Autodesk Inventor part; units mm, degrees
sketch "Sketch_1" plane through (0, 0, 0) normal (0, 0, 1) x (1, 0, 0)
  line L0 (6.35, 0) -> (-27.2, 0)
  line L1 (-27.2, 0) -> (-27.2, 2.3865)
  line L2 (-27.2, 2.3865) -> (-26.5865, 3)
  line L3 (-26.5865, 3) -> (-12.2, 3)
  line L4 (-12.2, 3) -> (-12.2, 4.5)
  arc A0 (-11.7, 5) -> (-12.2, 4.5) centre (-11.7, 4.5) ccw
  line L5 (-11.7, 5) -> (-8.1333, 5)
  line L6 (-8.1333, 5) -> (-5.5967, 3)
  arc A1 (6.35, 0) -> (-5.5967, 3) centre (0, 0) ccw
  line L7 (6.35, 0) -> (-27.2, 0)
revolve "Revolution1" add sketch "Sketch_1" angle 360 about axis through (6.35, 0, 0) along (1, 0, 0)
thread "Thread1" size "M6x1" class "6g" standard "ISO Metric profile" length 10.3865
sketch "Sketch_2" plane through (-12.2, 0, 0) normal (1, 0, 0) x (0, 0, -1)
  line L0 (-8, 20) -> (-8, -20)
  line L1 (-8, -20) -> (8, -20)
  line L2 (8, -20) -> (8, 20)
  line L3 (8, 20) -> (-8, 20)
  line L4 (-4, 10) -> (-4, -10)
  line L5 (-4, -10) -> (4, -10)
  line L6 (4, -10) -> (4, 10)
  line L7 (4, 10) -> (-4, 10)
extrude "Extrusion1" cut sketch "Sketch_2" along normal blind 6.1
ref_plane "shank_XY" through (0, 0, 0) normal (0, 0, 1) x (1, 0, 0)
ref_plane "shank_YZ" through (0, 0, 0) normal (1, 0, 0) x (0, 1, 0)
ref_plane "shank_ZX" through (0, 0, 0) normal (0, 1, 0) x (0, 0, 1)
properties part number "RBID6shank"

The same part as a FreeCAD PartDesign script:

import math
import FreeCAD as App
import Part
import Sketcher
from FreeCAD import Vector
Q = App.Units.Quantity


def add_polygon(sketch, points):
    """Adds a closed chain of lines whose ends are joined by coincident constraints."""
    first, n = sketch.GeometryCount, len(points)
    for a, b in zip(points, points[1:] + points[:1]):
        sketch.addGeometry(Part.LineSegment(App.Vector(*a, 0), App.Vector(*b, 0)), False)
    for i in range(n):
        sketch.addConstraint(Sketcher.Constraint("Coincident", first + i, 2, first + (i + 1) % n, 1))

doc = App.newDocument("Part")
body = doc.addObject("PartDesign::Body", "Body")

# Sketch on XY plane
sketch1 = body.newObject("Sketcher::SketchObject", "Sketch")
sketch1.AttachmentSupport = (doc.getObject("XY_Plane"), [""])
sketch1.MapMode = "FlatFace"
sketch1.addGeometry(Part.LineSegment(Vector(-27.2, 0, 0), Vector(6.3, 0, 0)), False)
sketch1.addGeometry(Part.ArcOfCircle(Part.Circle(Vector(0, 0, 0), Vector(0, 0, 1), 6.3), math.radians(0), math.radians(152)), False)
sketch1.addGeometry(Part.LineSegment(Vector(-5.6, 3, 0), Vector(-8.1, 5, 0)), False)
sketch1.addGeometry(Part.LineSegment(Vector(-8.1, 5, 0), Vector(-11.7, 5, 0)), False)
sketch1.addGeometry(Part.ArcOfCircle(Part.Circle(Vector(-11.7, 4.5, 0), Vector(0, 0, 1), 0.5), math.radians(90), math.radians(180)), False)
sketch1.addGeometry(Part.LineSegment(Vector(-12.2, 4.5, 0), Vector(-12.2, 3, 0)), False)
sketch1.addGeometry(Part.LineSegment(Vector(-12.2, 3, 0), Vector(-26.6, 3, 0)), False)
sketch1.addGeometry(Part.LineSegment(Vector(-26.6, 3, 0), Vector(-27.2, 2.4, 0)), False)
sketch1.addGeometry(Part.LineSegment(Vector(-27.2, 2.4, 0), Vector(-27.2, 0, 0)), False)
sketch1.addConstraint(Sketcher.Constraint("Coincident", 0, 2, 1, 1))
sketch1.addConstraint(Sketcher.Constraint("Coincident", 1, 2, 2, 1))
sketch1.addConstraint(Sketcher.Constraint("Coincident", 2, 2, 3, 1))
sketch1.addConstraint(Sketcher.Constraint("Tangent", 3, 2, 4, 1))
sketch1.addConstraint(Sketcher.Constraint("Tangent", 4, 2, 5, 1))
sketch1.addConstraint(Sketcher.Constraint("Coincident", 5, 2, 6, 1))
sketch1.addConstraint(Sketcher.Constraint("Coincident", 6, 2, 7, 1))
sketch1.addConstraint(Sketcher.Constraint("Coincident", 7, 2, 8, 1))
sketch1.addConstraint(Sketcher.Constraint("Coincident", 8, 2, 0, 1))
sketch1.addConstraint(Sketcher.Constraint("Horizontal", 0))
sketch1.addConstraint(Sketcher.Constraint("Horizontal", 3))
sketch1.addConstraint(Sketcher.Constraint("Vertical", 5))
sketch1.addConstraint(Sketcher.Constraint("Horizontal", 6))
sketch1.addConstraint(Sketcher.Constraint("Vertical", 8))
sketch1.addConstraint(Sketcher.Constraint("Coincident", 1, 3, -1, 1))
sketch1.addConstraint(Sketcher.Constraint("PointOnObject", 0, 2, -1))
sketch1.addConstraint(Sketcher.Constraint("Horizontal", 1, 2, 5, 2))
sketch1.addConstraint(Sketcher.Constraint("Radius", 4, 0.5))
sketch1.addConstraint(Sketcher.Constraint("Angle", 7, Q("-135 deg")))
sketch1.addConstraint(Sketcher.Constraint("Radius", 1, 6.35))
sketch1.addConstraint(Sketcher.Constraint("DistanceY", 5, 2, 5, 1, 1.5))
sketch1.addConstraint(Sketcher.Constraint("DistanceY", -1, 1, 1, 2, 3.0))
sketch1.addConstraint(Sketcher.Constraint("DistanceX", 7, 2, 5, 2, 15.0))
sketch1.addConstraint(Sketcher.Constraint("DistanceX", 0, 1, 0, 2, 33.55))
sketch1.addConstraint(Sketcher.Constraint("DistanceX", 3, 2, 3, 1, 3.5667))
sketch1.addConstraint(Sketcher.Constraint("DistanceX", 6, 2, 6, 1, 14.3865))
revolution = body.newObject("PartDesign::Revolution", "Revolution")
revolution.Profile = sketch1
revolution.ReferenceAxis = (sketch1, ["H_Axis"])
revolution.Angle = 360

# Sketch on YZ plane
sketch2 = body.newObject("Sketcher::SketchObject", "Sketch001")
sketch2.AttachmentSupport = (doc.getObject("YZ_Plane"), [""])
sketch2.MapMode = "FlatFace"
sketch2.AttachmentOffset = App.Placement(Vector(0, 0, -12.2), App.Rotation())
add_polygon(sketch2, [(20, -8), (20, 8), (-20, 8), (-20, -8)])  # lines 0-3
add_polygon(sketch2, [(-10, 4), (10, 4), (10, -4), (-10, -4)])  # lines 4-7
sketch2.addConstraint(Sketcher.Constraint("Vertical", 0))
sketch2.addConstraint(Sketcher.Constraint("Horizontal", 1))
sketch2.addConstraint(Sketcher.Constraint("Vertical", 2))
sketch2.addConstraint(Sketcher.Constraint("Horizontal", 3))
sketch2.addConstraint(Sketcher.Constraint("Horizontal", 4))
sketch2.addConstraint(Sketcher.Constraint("Vertical", 5))
sketch2.addConstraint(Sketcher.Constraint("Horizontal", 6))
sketch2.addConstraint(Sketcher.Constraint("Vertical", 7))
sketch2.addConstraint(Sketcher.Constraint("Symmetric", 0, 2, 2, 2, -1, 1))
sketch2.addConstraint(Sketcher.Constraint("Symmetric", 4, 2, 6, 2, -1, 1))
sketch2.addConstraint(Sketcher.Constraint("DistanceX", 1, 2, 1, 1, 40.0))
sketch2.addConstraint(Sketcher.Constraint("DistanceX", 4, 1, 4, 2, 20.0))
sketch2.addConstraint(Sketcher.Constraint("DistanceY", 0, 1, 0, 2, 16.0))
sketch2.addConstraint(Sketcher.Constraint("DistanceY", 5, 2, 5, 1, 8.0))
pocket1 = body.newObject("PartDesign::Pocket", "Pocket")
pocket1.Profile = sketch2
pocket1.Length = 6.1
pocket1.Reversed = True

doc.recompute()
